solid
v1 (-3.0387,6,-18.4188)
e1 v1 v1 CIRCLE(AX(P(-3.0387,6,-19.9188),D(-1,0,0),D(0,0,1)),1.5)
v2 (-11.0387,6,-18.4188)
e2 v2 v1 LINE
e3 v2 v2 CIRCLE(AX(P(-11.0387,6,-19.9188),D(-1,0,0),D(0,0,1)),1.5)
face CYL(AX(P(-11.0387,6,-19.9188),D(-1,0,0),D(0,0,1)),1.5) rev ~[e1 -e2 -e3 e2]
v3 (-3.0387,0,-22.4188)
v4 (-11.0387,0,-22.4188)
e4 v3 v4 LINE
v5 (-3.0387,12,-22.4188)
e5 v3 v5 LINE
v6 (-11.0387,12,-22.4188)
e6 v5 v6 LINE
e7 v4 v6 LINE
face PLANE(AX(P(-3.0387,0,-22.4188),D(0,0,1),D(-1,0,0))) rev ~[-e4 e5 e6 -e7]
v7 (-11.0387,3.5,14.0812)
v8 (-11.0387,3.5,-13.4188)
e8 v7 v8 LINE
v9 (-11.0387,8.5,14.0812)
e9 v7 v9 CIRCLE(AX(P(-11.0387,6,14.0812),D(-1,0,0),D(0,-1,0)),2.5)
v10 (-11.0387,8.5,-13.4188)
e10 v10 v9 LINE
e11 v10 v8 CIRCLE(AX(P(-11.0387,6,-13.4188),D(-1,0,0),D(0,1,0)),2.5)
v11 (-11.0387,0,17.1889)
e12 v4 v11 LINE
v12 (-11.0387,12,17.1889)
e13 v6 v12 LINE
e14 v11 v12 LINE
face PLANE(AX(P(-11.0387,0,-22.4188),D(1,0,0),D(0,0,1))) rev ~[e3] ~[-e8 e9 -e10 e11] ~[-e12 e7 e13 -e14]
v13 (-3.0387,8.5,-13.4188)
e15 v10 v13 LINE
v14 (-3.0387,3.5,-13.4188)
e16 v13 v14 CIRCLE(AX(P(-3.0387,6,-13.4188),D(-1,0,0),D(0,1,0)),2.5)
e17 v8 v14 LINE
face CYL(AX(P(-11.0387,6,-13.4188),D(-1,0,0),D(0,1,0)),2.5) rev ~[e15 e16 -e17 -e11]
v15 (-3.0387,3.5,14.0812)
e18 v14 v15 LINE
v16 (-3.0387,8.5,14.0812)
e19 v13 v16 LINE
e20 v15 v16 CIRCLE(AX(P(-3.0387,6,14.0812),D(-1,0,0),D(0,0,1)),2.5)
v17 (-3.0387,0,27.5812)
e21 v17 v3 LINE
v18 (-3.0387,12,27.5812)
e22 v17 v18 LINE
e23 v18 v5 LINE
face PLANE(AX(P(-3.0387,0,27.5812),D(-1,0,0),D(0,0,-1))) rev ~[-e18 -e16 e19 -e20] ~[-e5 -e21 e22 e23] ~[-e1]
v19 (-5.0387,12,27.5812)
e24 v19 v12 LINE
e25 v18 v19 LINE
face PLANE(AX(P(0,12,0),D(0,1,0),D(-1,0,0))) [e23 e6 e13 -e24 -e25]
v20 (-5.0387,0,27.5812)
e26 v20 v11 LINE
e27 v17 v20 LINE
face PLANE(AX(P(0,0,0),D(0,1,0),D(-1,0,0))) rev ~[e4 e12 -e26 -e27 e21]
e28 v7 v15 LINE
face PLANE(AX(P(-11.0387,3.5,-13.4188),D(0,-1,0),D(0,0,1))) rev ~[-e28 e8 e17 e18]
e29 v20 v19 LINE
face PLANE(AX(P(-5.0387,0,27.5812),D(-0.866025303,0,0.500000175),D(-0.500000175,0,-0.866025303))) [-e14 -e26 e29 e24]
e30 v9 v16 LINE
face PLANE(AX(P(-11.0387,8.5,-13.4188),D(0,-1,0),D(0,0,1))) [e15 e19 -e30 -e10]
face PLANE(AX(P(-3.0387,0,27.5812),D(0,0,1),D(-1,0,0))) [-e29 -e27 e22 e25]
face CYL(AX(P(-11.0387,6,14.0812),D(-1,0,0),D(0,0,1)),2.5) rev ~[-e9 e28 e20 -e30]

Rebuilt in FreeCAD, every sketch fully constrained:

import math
import FreeCAD as App
import Part
import Sketcher
from FreeCAD import Vector
Q = App.Units.Quantity


def add_polygon(sketch, points):
    """Adds a closed chain of lines whose ends are joined by coincident constraints."""
    first, n = sketch.GeometryCount, len(points)
    for a, b in zip(points, points[1:] + points[:1]):
        sketch.addGeometry(Part.LineSegment(App.Vector(*a, 0), App.Vector(*b, 0)), False)
    for i in range(n):
        sketch.addConstraint(Sketcher.Constraint("Coincident", first + i, 2, first + (i + 1) % n, 1))

doc = App.newDocument("Part")
params = doc.addObject("Spreadsheet::Sheet", "Params")
for row, (alias, value) in enumerate([
    ("sketch1_width", "2 mm"),
    ("sketch1_width2", "8 mm"),
    ("sketch1_height", "50 mm"),
    ("pad1_length", "12 mm"),
    ("sketch2_diameter", "3 mm"),
    ("sketch2_radius", "2.5 mm"),
    ("sketch2_height", "27.5 mm"),
    ("pocket1_length", "10 mm"),
], start=1):
    params.set(f"A{row}", alias)
    params.set(f"B{row}", "=" + value)
    params.setAlias(f"B{row}", alias)

body = doc.addObject("PartDesign::Body", "Body")

# Sketch on XZ plane
sketch1 = doc.addObject("Sketcher::SketchObject", "Sketch")
body.addObject(sketch1)
sketch1.AttachmentSupport = (doc.XZ_Plane, [""])
sketch1.MapMode = "FlatFace"
add_polygon(sketch1, [(-5, 27.6), (-3, 27.6), (-3, -22.4), (-11, -22.4), (-11, 17.2)])  # lines 0-4
sketch1.addConstraint([
    Sketcher.Constraint("Horizontal", 0),
    Sketcher.Constraint("Vertical", 1),
    Sketcher.Constraint("Horizontal", 2),
    Sketcher.Constraint("Vertical", 3),
    Sketcher.Constraint("DistanceX", 0, 1, 0, 2, Q("2 mm")),
    Sketcher.Constraint("DistanceX", 2, 2, 2, 1, Q("8 mm")),
    Sketcher.Constraint("DistanceY", 1, 2, 1, 1, Q("50 mm")),
    Sketcher.Constraint("Angle", 4, Q("60 deg")),
    Sketcher.Constraint("DistanceY", -1, 1, 3, 2, Q("17.189 mm")),
    Sketcher.Constraint("DistanceX", 0, 2, -1, 1, Q("3.0387 mm")),
])
sketch1.setExpression("Constraints[9]", "Params.sketch1_width")
sketch1.setExpression("Constraints[10]", "Params.sketch1_width2")
sketch1.setExpression("Constraints[11]", "Params.sketch1_height")
pad1 = doc.addObject("PartDesign::Pad", "Pad")
body.addObject(pad1)
pad1.Profile = sketch1
pad1.setExpression("Length", "Params.pad1_length")
pad1.Reversed = True

# Sketch on YZ plane
sketch2 = doc.addObject("Sketcher::SketchObject", "Sketch001")
body.addObject(sketch2)
sketch2.AttachmentSupport = (doc.YZ_Plane, [""])
sketch2.MapMode = "FlatFace"
sketch2.AttachmentOffset = App.Placement(Vector(0, 0, -11.0387), App.Rotation())
sketch2.addGeometry([
    Part.Circle(Vector(6, -19.9, 0), Vector(0, 0, 1), 1.5),  # 0
    Part.ArcOfCircle(Part.Circle(Vector(6, -13.4, 0), Vector(0, 0, 1), 2.5), math.radians(180), math.radians(360)),  # 1
    Part.LineSegment(Vector(3.5, -13.4, 0), Vector(3.5, 14.1, 0)),  # 2
    Part.ArcOfCircle(Part.Circle(Vector(6, 14.1, 0), Vector(0, 0, 1), 2.5), math.radians(0), math.radians(180)),  # 3
    Part.LineSegment(Vector(8.5, 14.1, 0), Vector(8.5, -13.4, 0)),  # 4
], False)
sketch2.addConstraint([
    Sketcher.Constraint("Tangent", 1, 1, 2, 1),
    Sketcher.Constraint("Tangent", 2, 2, 3, 2),
    Sketcher.Constraint("Tangent", 3, 1, 4, 1),
    Sketcher.Constraint("Tangent", 4, 2, 1, 2),
    Sketcher.Constraint("Vertical", 2),
    Sketcher.Constraint("Vertical", 4),
    Sketcher.Constraint("Vertical", 0, 3, 1, 3),
    Sketcher.Constraint("Diameter", 0, Q("3 mm")),
    Sketcher.Constraint("Radius", 1, Q("2.5 mm")),
    Sketcher.Constraint("DistanceY", 2, 1, 2, 2, Q("27.5 mm")),
    Sketcher.Constraint("DistanceX", -1, 1, 0, 3, Q("6 mm")),
    Sketcher.Constraint("DistanceY", 0, 3, 3, 3, Q("34 mm")),
    Sketcher.Constraint("DistanceY", 0, 3, -1, 1, Q("19.9188 mm")),
])
sketch2.setExpression("Constraints[7]", "Params.sketch2_diameter")
sketch2.setExpression("Constraints[8]", "Params.sketch2_radius")
sketch2.setExpression("Constraints[9]", "Params.sketch2_height")
pocket1 = doc.addObject("PartDesign::Pocket", "Pocket")
body.addObject(pocket1)
pocket1.Profile = sketch2
pocket1.setExpression("Length", "Params.pocket1_length")
pocket1.Reversed = True

doc.recompute()
